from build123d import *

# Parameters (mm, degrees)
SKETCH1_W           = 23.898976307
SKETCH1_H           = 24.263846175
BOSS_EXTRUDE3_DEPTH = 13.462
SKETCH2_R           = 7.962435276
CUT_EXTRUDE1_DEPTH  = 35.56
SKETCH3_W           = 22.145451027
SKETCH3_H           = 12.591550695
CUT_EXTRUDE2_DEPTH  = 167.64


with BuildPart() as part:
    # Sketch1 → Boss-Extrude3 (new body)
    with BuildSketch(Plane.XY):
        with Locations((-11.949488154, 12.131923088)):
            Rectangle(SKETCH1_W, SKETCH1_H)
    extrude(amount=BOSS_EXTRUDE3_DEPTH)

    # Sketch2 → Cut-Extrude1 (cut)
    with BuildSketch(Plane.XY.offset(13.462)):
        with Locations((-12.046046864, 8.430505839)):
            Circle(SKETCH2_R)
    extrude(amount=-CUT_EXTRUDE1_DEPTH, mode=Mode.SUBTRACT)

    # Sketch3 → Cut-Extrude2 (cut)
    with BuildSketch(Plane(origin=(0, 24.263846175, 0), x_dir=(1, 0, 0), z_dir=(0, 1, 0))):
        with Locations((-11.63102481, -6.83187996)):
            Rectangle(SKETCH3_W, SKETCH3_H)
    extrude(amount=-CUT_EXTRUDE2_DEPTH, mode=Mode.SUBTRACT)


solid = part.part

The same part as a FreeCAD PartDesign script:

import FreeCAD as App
import Part
import Sketcher

V = App.Vector


def add_polygon(sketch, points):
    """Adds a closed chain of lines whose ends are joined by coincident constraints."""
    first, n = sketch.GeometryCount, len(points)
    for a, b in zip(points, points[1:] + points[:1]):
        sketch.addGeometry(Part.LineSegment(App.Vector(*a, 0), App.Vector(*b, 0)), False)
    for i in range(n):
        sketch.addConstraint(Sketcher.Constraint("Coincident", first + i, 2, first + (i + 1) % n, 1))

doc = App.newDocument("Part")
params = doc.addObject("Spreadsheet::Sheet", "Params")
for row, (alias, value) in enumerate([
    ("pad1_length", "0.53 in"),
    ("pocket1_length", "1.4 in"),
    ("pocket2_length", "6.6 in"),
], start=1):
    params.set(f"A{row}", alias)
    params.set(f"B{row}", "=" + value)
    params.setAlias(f"B{row}", alias)

body = doc.addObject("PartDesign::Body", "Body")

sketch1 = body.newObject("Sketcher::SketchObject", "Sketch")
sketch1.AttachmentSupport = (doc.getObject("XY_Plane"), [""])
sketch1.MapMode = "FlatFace"
add_polygon(sketch1, [(-24, 24), (-24, 0), (0, 0), (0, 24)])
sketch1.addConstraint(Sketcher.Constraint("Vertical", 0))
sketch1.addConstraint(Sketcher.Constraint("Horizontal", 1))
sketch1.addConstraint(Sketcher.Constraint("Vertical", 2))
sketch1.addConstraint(Sketcher.Constraint("Horizontal", 3))
sketch1.addConstraint(Sketcher.Constraint("Coincident", 1, 2, -1, 1))
sketch1.addConstraint(Sketcher.Constraint("DistanceX", 1, 1, 1, 2, 23.898976))
sketch1.addConstraint(Sketcher.Constraint("DistanceY", 0, 2, 0, 1, 24.263846))
pad1 = body.newObject("PartDesign::Pad", "Pad")
pad1.Profile = sketch1
pad1.setExpression("Length", "Params.pad1_length")

sketch2 = body.newObject("Sketcher::SketchObject", "Sketch001")
sketch2.AttachmentSupport = (doc.getObject("XY_Plane"), [""])
sketch2.MapMode = "FlatFace"
sketch2.AttachmentOffset = App.Placement(V(0, 0, 0.53 * 25.4), App.Rotation())
sketch2.addGeometry(Part.Circle(V(-12, 8, 0), V(0, 0, 1), 8), False)
sketch2.addConstraint(Sketcher.Constraint("Diameter", 0, 15.924871))
sketch2.addConstraint(Sketcher.Constraint("DistanceX", 0, 3, -1, 1, 12.046047))
sketch2.addConstraint(Sketcher.Constraint("DistanceY", -1, 1, 0, 3, 8.430506))
pocket1 = body.newObject("PartDesign::Pocket", "Pocket")
pocket1.Profile = sketch2
pocket1.setExpression("Length", "Params.pocket1_length")

sketch3 = body.newObject("Sketcher::SketchObject", "Sketch002")
sketch3.AttachmentSupport = (doc.getObject("XZ_Plane"), [""])
sketch3.MapMode = "FlatFace"
sketch3.AttachmentOffset = App.Placement(V(0, 0, -24.263846), App.Rotation())
add_polygon(sketch3, [(-23, 1), (-23, 13), (-1, 13), (-1, 1)])
sketch3.addConstraint(Sketcher.Constraint("Vertical", 0))
sketch3.addConstraint(Sketcher.Constraint("Horizontal", 1))
sketch3.addConstraint(Sketcher.Constraint("Vertical", 2))
sketch3.addConstraint(Sketcher.Constraint("Horizontal", 3))
sketch3.addConstraint(Sketcher.Constraint("DistanceX", 1, 1, 1, 2, 22.145451))
sketch3.addConstraint(Sketcher.Constraint("DistanceY", 0, 1, 0, 2, 12.591551))
sketch3.addConstraint(Sketcher.Constraint("DistanceX", 1, 2, -1, 1, 0.558299))
sketch3.addConstraint(Sketcher.Constraint("DistanceY", -1, 1, 0, 2, 13.127655))
pocket2 = body.newObject("PartDesign::Pocket", "Pocket001")
pocket2.Profile = sketch3
pocket2.setExpression("Length", "Params.pocket2_length")
pocket2.Reversed = True

doc.recompute()
